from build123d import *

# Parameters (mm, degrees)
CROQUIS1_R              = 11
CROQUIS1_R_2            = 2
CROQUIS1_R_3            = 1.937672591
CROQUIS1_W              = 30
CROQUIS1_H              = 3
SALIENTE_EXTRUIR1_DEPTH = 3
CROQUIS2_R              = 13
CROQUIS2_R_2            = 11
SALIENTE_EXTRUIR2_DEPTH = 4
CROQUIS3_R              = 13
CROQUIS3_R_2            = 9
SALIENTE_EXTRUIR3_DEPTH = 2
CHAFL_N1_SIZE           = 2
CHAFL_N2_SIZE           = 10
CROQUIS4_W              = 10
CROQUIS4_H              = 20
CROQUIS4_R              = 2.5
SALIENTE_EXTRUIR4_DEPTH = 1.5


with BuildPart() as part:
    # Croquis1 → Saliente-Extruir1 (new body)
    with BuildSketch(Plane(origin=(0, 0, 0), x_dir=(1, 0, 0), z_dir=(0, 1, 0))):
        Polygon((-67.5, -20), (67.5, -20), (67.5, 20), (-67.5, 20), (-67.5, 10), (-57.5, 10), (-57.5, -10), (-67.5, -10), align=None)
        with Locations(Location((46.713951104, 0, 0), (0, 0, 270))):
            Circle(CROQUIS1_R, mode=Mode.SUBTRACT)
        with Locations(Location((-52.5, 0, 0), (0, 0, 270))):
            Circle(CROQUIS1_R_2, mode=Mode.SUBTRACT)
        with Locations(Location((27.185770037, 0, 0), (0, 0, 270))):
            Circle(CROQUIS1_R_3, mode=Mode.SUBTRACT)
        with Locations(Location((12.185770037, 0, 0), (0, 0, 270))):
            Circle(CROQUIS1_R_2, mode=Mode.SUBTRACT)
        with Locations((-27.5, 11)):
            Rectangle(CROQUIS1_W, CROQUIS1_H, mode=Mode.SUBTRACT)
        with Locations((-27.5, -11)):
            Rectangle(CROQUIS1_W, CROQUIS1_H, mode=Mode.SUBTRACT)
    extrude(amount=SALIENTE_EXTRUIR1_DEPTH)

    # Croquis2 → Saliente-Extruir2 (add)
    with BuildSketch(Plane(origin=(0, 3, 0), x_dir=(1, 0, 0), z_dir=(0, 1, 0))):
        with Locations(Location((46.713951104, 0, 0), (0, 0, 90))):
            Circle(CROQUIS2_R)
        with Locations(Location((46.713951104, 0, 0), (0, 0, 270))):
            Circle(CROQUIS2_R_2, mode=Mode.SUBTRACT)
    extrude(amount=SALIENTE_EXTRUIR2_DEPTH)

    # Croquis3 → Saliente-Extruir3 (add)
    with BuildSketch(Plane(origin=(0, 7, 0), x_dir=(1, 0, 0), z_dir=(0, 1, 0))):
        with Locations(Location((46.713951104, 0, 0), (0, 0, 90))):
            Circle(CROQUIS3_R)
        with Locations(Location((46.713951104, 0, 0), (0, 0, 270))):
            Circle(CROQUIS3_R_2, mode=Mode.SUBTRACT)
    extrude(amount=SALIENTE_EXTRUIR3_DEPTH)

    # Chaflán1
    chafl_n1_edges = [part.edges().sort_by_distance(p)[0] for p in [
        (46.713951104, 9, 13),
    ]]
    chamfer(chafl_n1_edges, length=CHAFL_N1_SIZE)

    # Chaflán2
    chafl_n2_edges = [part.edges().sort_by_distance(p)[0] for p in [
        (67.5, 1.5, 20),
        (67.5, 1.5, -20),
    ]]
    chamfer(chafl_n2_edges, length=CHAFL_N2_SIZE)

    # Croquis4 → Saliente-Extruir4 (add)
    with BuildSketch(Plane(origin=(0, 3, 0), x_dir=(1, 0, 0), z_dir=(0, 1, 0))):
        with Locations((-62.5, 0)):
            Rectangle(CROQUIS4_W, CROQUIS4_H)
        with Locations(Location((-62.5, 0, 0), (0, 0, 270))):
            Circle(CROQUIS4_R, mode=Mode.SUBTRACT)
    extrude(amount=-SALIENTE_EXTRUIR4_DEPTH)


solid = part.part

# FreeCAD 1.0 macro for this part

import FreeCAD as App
import Part
import Sketcher
Q = App.Units.Quantity


def edges_at(feature, points):
    """Names of the edges that pass closest to the given points."""
    edges = feature.Shape.Edges
    near = lambda p: min(range(len(edges)), key=lambda i: edges[i].distToShape(Part.Vertex(*p))[0])
    return sorted({f"Edge{near(p) + 1}" for p in points})


def add_polygon(sketch, points):
    """Adds a closed chain of lines whose ends are joined by coincident constraints."""
    first, n = sketch.GeometryCount, len(points)
    for a, b in zip(points, points[1:] + points[:1]):
        sketch.addGeometry(Part.LineSegment(App.Vector(*a, 0), App.Vector(*b, 0)), False)
    for i in range(n):
        sketch.addConstraint(Sketcher.Constraint("Coincident", first + i, 2, first + (i + 1) % n, 1))

doc = App.newDocument("Part")
body = doc.addObject("PartDesign::Body", "Body")

sketch1 = body.newObject("Sketcher::SketchObject", "Sketch")
sketch1.AttachmentSupport = (doc.getObject("XZ_Plane"), [""])
sketch1.MapMode = "FlatFace"
add_polygon(sketch1, [(-67.5, 20), (67.5, 20), (67.5, -20), (-67.5, -20), (-67.5, -10), (-57.5, -10), (-57.5, 10), (-67.5, 10)])
add_polygon(sketch1, [(-12.5, 12.5), (-42.5, 12.5), (-42.5, 9.5), (-12.5, 9.5)])
sketch1.addGeometry(Part.Circle(App.Vector(-52.5, 0, 0), App.Vector(0, 0, 1), 2), False)
add_polygon(sketch1, [(-12.5, -9.5), (-42.5, -9.5), (-42.5, -12.5), (-12.5, -12.5)])
sketch1.addGeometry(Part.Circle(App.Vector(12.2, 0, 0), App.Vector(0, 0, 1), 2), False)
sketch1.addGeometry(Part.Circle(App.Vector(27.2, 0, 0), App.Vector(0, 0, 1), 1.9), False)
sketch1.addGeometry(Part.Circle(App.Vector(46.7, 0, 0), App.Vector(0, 0, 1), 11), False)
sketch1.addConstraint(Sketcher.Constraint("Horizontal", 0))
sketch1.addConstraint(Sketcher.Constraint("Vertical", 1))
sketch1.addConstraint(Sketcher.Constraint("Horizontal", 2))
sketch1.addConstraint(Sketcher.Constraint("Vertical", 3))
sketch1.addConstraint(Sketcher.Constraint("Horizontal", 4))
sketch1.addConstraint(Sketcher.Constraint("Vertical", 5))
sketch1.addConstraint(Sketcher.Constraint("Horizontal", 6))
sketch1.addConstraint(Sketcher.Constraint("Vertical", 7))
sketch1.addConstraint(Sketcher.Constraint("Horizontal", 8))
sketch1.addConstraint(Sketcher.Constraint("Vertical", 9))
sketch1.addConstraint(Sketcher.Constraint("Horizontal", 10))
sketch1.addConstraint(Sketcher.Constraint("Vertical", 11))
sketch1.addConstraint(Sketcher.Constraint("Horizontal", 13))
sketch1.addConstraint(Sketcher.Constraint("Vertical", 14))
sketch1.addConstraint(Sketcher.Constraint("Horizontal", 15))
sketch1.addConstraint(Sketcher.Constraint("Vertical", 16))
sketch1.addConstraint(Sketcher.Constraint("Equal", 12, 17))
sketch1.addConstraint(Sketcher.Constraint("Symmetric", 0, 2, 2, 2, -1, 1))
sketch1.addConstraint(Sketcher.Constraint("Symmetric", 3, 2, 6, 2, -1))
sketch1.addConstraint(Sketcher.Constraint("Symmetric", 9, 2, 13, 2, -1))
sketch1.addConstraint(Sketcher.Constraint("Symmetric", 11, 2, 15, 2, -1))
sketch1.addConstraint(Sketcher.Constraint("PointOnObject", 12, 3, -1))
sketch1.addConstraint(Sketcher.Constraint("PointOnObject", 17, 3, -1))
sketch1.addConstraint(Sketcher.Constraint("PointOnObject", 18, 3, -1))
sketch1.addConstraint(Sketcher.Constraint("PointOnObject", 19, 3, -1))
sketch1.addConstraint(Sketcher.Constraint("Equal", 6, 3))
sketch1.addConstraint(Sketcher.Constraint("Diameter", 12, Q("4 mm")))
sketch1.addConstraint(Sketcher.Constraint("Diameter", 19, Q("22 mm")))
sketch1.addConstraint(Sketcher.Constraint("DistanceX", 0, 1, 0, 2, Q("135 mm")))
sketch1.addConstraint(Sketcher.Constraint("DistanceX", 4, 1, 4, 2, Q("10 mm")))
sketch1.addConstraint(Sketcher.Constraint("DistanceX", 8, 2, 8, 1, Q("30 mm")))
sketch1.addConstraint(Sketcher.Constraint("DistanceY", 1, 2, 1, 1, Q("40 mm")))
sketch1.addConstraint(Sketcher.Constraint("DistanceY", 9, 2, 9, 1, Q("3 mm")))
sketch1.addConstraint(Sketcher.Constraint("DistanceX", 17, 3, 18, 3, Q("15 mm")))
sketch1.addConstraint(Sketcher.Constraint("DistanceX", 12, 3, 0, 2, Q("120 mm")))
sketch1.addConstraint(Sketcher.Constraint("DistanceX", 5, 2, 8, 2, Q("15 mm")))
sketch1.addConstraint(Sketcher.Constraint("DistanceY", 13, 2, 9, 2, Q("19 mm")))
sketch1.addConstraint(Sketcher.Constraint("Diameter", 18, Q("3.875345 mm")))
sketch1.addConstraint(Sketcher.Constraint("DistanceX", -1, 1, 17, 3, Q("12.18577 mm")))
sketch1.addConstraint(Sketcher.Constraint("DistanceX", -1, 1, 19, 3, Q("46.713951 mm")))
pad1 = body.newObject("PartDesign::Pad", "Pad")
pad1.Profile = sketch1
pad1.Length = 3
pad1.Reversed = True

sketch2 = body.newObject("Sketcher::SketchObject", "Sketch001")
sketch2.AttachmentSupport = (doc.getObject("XZ_Plane"), [""])
sketch2.MapMode = "FlatFace"
sketch2.AttachmentOffset = App.Placement(App.Vector(0, 0, -3), App.Rotation())
sketch2.addGeometry(Part.Circle(App.Vector(47, 0, 0), App.Vector(0, 0, 1), 13), False)
sketch2.addGeometry(Part.Circle(App.Vector(47, 0, 0), App.Vector(0, 0, 1), 11), False)
sketch2.addConstraint(Sketcher.Constraint("Coincident", 1, 3, 0, 3))
sketch2.addConstraint(Sketcher.Constraint("PointOnObject", 0, 3, -1))
sketch2.addConstraint(Sketcher.Constraint("Diameter", 0, Q("26 mm")))
sketch2.addConstraint(Sketcher.Constraint("Diameter", 1, Q("22 mm")))
sketch2.addConstraint(Sketcher.Constraint("DistanceX", -1, 1, 0, 3, Q("46.713951 mm")))
pad2 = body.newObject("PartDesign::Pad", "Pad001")
pad2.Profile = sketch2
pad2.Length = 4
pad2.Reversed = True

sketch3 = body.newObject("Sketcher::SketchObject", "Sketch002")
sketch3.AttachmentSupport = (doc.getObject("XZ_Plane"), [""])
sketch3.MapMode = "FlatFace"
sketch3.AttachmentOffset = App.Placement(App.Vector(0, 0, -7), App.Rotation())
sketch3.addGeometry(Part.Circle(App.Vector(47, 0, 0), App.Vector(0, 0, 1), 13), False)
sketch3.addGeometry(Part.Circle(App.Vector(47, 0, 0), App.Vector(0, 0, 1), 9), False)
sketch3.addConstraint(Sketcher.Constraint("Coincident", 1, 3, 0, 3))
sketch3.addConstraint(Sketcher.Constraint("PointOnObject", 0, 3, -1))
sketch3.addConstraint(Sketcher.Constraint("Diameter", 0, Q("26 mm")))
sketch3.addConstraint(Sketcher.Constraint("Diameter", 1, Q("18 mm")))
sketch3.addConstraint(Sketcher.Constraint("DistanceX", -1, 1, 0, 3, Q("46.713951 mm")))
pad3 = body.newObject("PartDesign::Pad", "Pad002")
pad3.Profile = sketch3
pad3.Length = 2
pad3.Reversed = True
doc.recompute()

chamfer = body.newObject("PartDesign::Chamfer", "Chamfer")
chamfer.Base = (pad3, edges_at(pad3, [(46.714, 9, 13)]))
chamfer.Size = 2
doc.recompute()

chamfer2 = body.newObject("PartDesign::Chamfer", "Chamfer001")
chamfer2.Base = (chamfer, edges_at(chamfer, [(67.5, 1.5, 20), (67.5, 1.5, -20)]))
chamfer2.Size = 10

sketch4 = body.newObject("Sketcher::SketchObject", "Sketch003")
sketch4.AttachmentSupport = (doc.getObject("XZ_Plane"), [""])
sketch4.MapMode = "FlatFace"
sketch4.AttachmentOffset = App.Placement(App.Vector(0, 0, -3), App.Rotation())
add_polygon(sketch4, [(-67.5, -10), (-67.5, 10), (-57.5, 10), (-57.5, -10)])
sketch4.addGeometry(Part.Circle(App.Vector(-62.5, 0, 0), App.Vector(0, 0, 1), 2.5), False)
sketch4.addConstraint(Sketcher.Constraint("Vertical", 0))
sketch4.addConstraint(Sketcher.Constraint("Horizontal", 1))
sketch4.addConstraint(Sketcher.Constraint("Vertical", 2))
sketch4.addConstraint(Sketcher.Constraint("Horizontal", 3))
sketch4.addConstraint(Sketcher.Constraint("PointOnObject", 4, 3, -1))
sketch4.addConstraint(Sketcher.Constraint("Diameter", 4, Q("5 mm")))
sketch4.addConstraint(Sketcher.Constraint("DistanceX", 1, 1, 1, 2, Q("10 mm")))
sketch4.addConstraint(Sketcher.Constraint("DistanceY", 0, 1, 0, 2, Q("20 mm")))
sketch4.addConstraint(Sketcher.Constraint("DistanceY", -1, 1, 0, 2, Q("10 mm")))
sketch4.addConstraint(Sketcher.Constraint("DistanceX", 0, 2, 4, 3, Q("5 mm")))
sketch4.addConstraint(Sketcher.Constraint("DistanceX", 4, 3, -1, 1, Q("62.5 mm")))
pad4 = body.newObject("PartDesign::Pad", "Pad003")
pad4.Profile = sketch4
pad4.Length = 1.5

doc.recompute()
